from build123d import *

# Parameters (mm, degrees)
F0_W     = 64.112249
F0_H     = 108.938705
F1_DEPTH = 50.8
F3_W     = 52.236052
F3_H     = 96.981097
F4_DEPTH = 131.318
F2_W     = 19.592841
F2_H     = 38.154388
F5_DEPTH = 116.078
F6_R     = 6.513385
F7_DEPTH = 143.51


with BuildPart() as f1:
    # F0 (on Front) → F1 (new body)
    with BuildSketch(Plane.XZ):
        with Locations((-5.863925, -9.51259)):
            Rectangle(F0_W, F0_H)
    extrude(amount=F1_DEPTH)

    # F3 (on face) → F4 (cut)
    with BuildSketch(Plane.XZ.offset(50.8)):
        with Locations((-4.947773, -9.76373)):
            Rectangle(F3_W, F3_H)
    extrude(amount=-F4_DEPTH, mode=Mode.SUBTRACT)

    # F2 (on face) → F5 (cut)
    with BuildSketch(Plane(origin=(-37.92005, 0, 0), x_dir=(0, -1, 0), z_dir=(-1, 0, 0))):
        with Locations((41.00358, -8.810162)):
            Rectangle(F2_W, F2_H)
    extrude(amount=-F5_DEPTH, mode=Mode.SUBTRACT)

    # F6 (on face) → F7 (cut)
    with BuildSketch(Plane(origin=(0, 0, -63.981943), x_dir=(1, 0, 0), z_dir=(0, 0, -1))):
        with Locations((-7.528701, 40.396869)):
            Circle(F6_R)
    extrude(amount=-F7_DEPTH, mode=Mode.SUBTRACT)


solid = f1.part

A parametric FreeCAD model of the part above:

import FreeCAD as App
import Part
import Sketcher
Q = App.Units.Quantity

doc = App.newDocument("Part")
params = doc.addObject("Spreadsheet::Sheet", "Params")
for row, (alias, value) in enumerate([
    ("pad1_length", "2 in"),
    ("pocket1_length", "5.17 in"),
    ("pocket2_length", "4.57 in"),
    ("pocket3_length", "5.65 in"),
], start=1):
    params.set(f"A{row}", alias)
    params.set(f"B{row}", "=" + value)
    params.setAlias(f"B{row}", alias)

body = doc.addObject("PartDesign::Body", "Body")

# Sketch on XZ plane
sketch1 = body.newObject("Sketcher::SketchObject", "Sketch")
sketch1.AttachmentSupport = (doc.getObject("XZ_Plane"), [""])
sketch1.MapMode = "FlatFace"
sketch1.addGeometry([
    Part.LineSegment(App.Vector(-37.920049, 44.956763, 0), App.Vector(-37.920049, -63.981943, 0)),
    Part.LineSegment(App.Vector(-37.920049, -63.981943, 0), App.Vector(26.1922, -63.981943, 0)),
    Part.LineSegment(App.Vector(26.1922, -63.981943, 0), App.Vector(26.1922, 44.956763, 0)),
    Part.LineSegment(App.Vector(26.1922, 44.956763, 0), App.Vector(-37.920049, 44.956763, 0)),
], False)
sketch1.addConstraint([
    Sketcher.Constraint("Coincident", 0, 2, 1, 1),
    Sketcher.Constraint("Coincident", 1, 2, 2, 1),
    Sketcher.Constraint("Coincident", 2, 2, 3, 1),
    Sketcher.Constraint("Coincident", 3, 2, 0, 1),
    Sketcher.Constraint("Vertical", 0),
    Sketcher.Constraint("Horizontal", 1),
    Sketcher.Constraint("Vertical", 2),
    Sketcher.Constraint("Horizontal", 3),
    Sketcher.Constraint("DistanceX", 1, 1, 1, 2, 64.112249),
    Sketcher.Constraint("DistanceX", -1, 1, 1, 2, 26.1922),
    Sketcher.Constraint("DistanceY", 0, 2, 0, 1, 108.938705),
    Sketcher.Constraint("DistanceY", 0, 2, -1, 1, 63.981943),
])
pad1 = body.newObject("PartDesign::Pad", "Pad")
pad1.Profile = sketch1
pad1.setExpression("Length", "Params.pad1_length")

# Sketch on XZ plane
sketch2 = body.newObject("Sketcher::SketchObject", "Sketch001")
sketch2.AttachmentSupport = (doc.getObject("XZ_Plane"), [""])
sketch2.MapMode = "FlatFace"
sketch2.AttachmentOffset = App.Placement(App.Vector(0, 0, 2 * 25.4), App.Rotation())
sketch2.addGeometry([
    Part.LineSegment(App.Vector(-31.065799, 38.726819, 0), App.Vector(-31.065799, -58.254278, 0)),
    Part.LineSegment(App.Vector(-31.065799, -58.254278, 0), App.Vector(21.170253, -58.254278, 0)),
    Part.LineSegment(App.Vector(21.170253, -58.254278, 0), App.Vector(21.170253, 38.726819, 0)),
    Part.LineSegment(App.Vector(21.170253, 38.726819, 0), App.Vector(-31.065799, 38.726819, 0)),
], False)
sketch2.addConstraint([
    Sketcher.Constraint("Coincident", 0, 2, 1, 1),
    Sketcher.Constraint("Coincident", 1, 2, 2, 1),
    Sketcher.Constraint("Coincident", 2, 2, 3, 1),
    Sketcher.Constraint("Coincident", 3, 2, 0, 1),
    Sketcher.Constraint("Vertical", 0),
    Sketcher.Constraint("Horizontal", 1),
    Sketcher.Constraint("Vertical", 2),
    Sketcher.Constraint("Horizontal", 3),
    Sketcher.Constraint("DistanceX", 0, 2, -1, 1, 31.065799),
    Sketcher.Constraint("DistanceX", 1, 1, 1, 2, 52.236052),
    Sketcher.Constraint("DistanceY", 0, 2, 0, 1, 96.981097),
    Sketcher.Constraint("DistanceY", 0, 2, -1, 1, 58.254278),
])
pocket1 = body.newObject("PartDesign::Pocket", "Pocket")
pocket1.Profile = sketch2
pocket1.setExpression("Length", "Params.pocket1_length")

# Sketch on YZ plane
sketch3 = body.newObject("Sketcher::SketchObject", "Sketch002")
sketch3.AttachmentSupport = (doc.getObject("YZ_Plane"), [""])
sketch3.MapMode = "FlatFace"
sketch3.AttachmentOffset = App.Placement(App.Vector(0, 0, -37.92005), App.Rotation())
sketch3.addGeometry([
    Part.LineSegment(App.Vector(-31.207159, 10.267032, 0), App.Vector(-31.207159, -27.887356, 0)),
    Part.LineSegment(App.Vector(-31.207159, -27.887356, 0), App.Vector(-50.800001, -27.887356, 0)),
    Part.LineSegment(App.Vector(-50.800001, -27.887356, 0), App.Vector(-50.800001, 10.267032, 0)),
    Part.LineSegment(App.Vector(-50.800001, 10.267032, 0), App.Vector(-31.207159, 10.267032, 0)),
], False)
sketch3.addConstraint([
    Sketcher.Constraint("Coincident", 0, 2, 1, 1),
    Sketcher.Constraint("Coincident", 1, 2, 2, 1),
    Sketcher.Constraint("Coincident", 2, 2, 3, 1),
    Sketcher.Constraint("Coincident", 3, 2, 0, 1),
    Sketcher.Constraint("Vertical", 0),
    Sketcher.Constraint("Horizontal", 1),
    Sketcher.Constraint("Vertical", 2),
    Sketcher.Constraint("Horizontal", 3),
    Sketcher.Constraint("DistanceX", 1, 2, -1, 1, Q("2 in")),
    Sketcher.Constraint("DistanceX", 1, 2, 1, 1, 19.592841),
    Sketcher.Constraint("DistanceY", 0, 2, 0, 1, 38.154388),
    Sketcher.Constraint("DistanceY", 0, 2, -1, 1, 27.887356),
])
pocket2 = body.newObject("PartDesign::Pocket", "Pocket001")
pocket2.Profile = sketch3
pocket2.setExpression("Length", "Params.pocket2_length")
pocket2.Reversed = True

# Sketch on XY plane
sketch4 = body.newObject("Sketcher::SketchObject", "Sketch003")
sketch4.AttachmentSupport = (doc.getObject("XY_Plane"), [""])
sketch4.MapMode = "FlatFace"
sketch4.AttachmentOffset = App.Placement(App.Vector(0, 0, -63.981943), App.Rotation())
sketch4.addGeometry(Part.Circle(App.Vector(-7.528701, -40.396869, 0), App.Vector(0, 0, 1), 6.513385), False)
sketch4.addConstraint([
    Sketcher.Constraint("Diameter", 0, 13.02677),
    Sketcher.Constraint("DistanceX", 0, 3, -1, 1, 7.528701),
    Sketcher.Constraint("DistanceY", 0, 3, -1, 1, 40.396869),
])
pocket3 = body.newObject("PartDesign::Pocket", "Pocket002")
pocket3.Profile = sketch4
pocket3.setExpression("Length", "Params.pocket3_length")
pocket3.Reversed = True

doc.recompute()
